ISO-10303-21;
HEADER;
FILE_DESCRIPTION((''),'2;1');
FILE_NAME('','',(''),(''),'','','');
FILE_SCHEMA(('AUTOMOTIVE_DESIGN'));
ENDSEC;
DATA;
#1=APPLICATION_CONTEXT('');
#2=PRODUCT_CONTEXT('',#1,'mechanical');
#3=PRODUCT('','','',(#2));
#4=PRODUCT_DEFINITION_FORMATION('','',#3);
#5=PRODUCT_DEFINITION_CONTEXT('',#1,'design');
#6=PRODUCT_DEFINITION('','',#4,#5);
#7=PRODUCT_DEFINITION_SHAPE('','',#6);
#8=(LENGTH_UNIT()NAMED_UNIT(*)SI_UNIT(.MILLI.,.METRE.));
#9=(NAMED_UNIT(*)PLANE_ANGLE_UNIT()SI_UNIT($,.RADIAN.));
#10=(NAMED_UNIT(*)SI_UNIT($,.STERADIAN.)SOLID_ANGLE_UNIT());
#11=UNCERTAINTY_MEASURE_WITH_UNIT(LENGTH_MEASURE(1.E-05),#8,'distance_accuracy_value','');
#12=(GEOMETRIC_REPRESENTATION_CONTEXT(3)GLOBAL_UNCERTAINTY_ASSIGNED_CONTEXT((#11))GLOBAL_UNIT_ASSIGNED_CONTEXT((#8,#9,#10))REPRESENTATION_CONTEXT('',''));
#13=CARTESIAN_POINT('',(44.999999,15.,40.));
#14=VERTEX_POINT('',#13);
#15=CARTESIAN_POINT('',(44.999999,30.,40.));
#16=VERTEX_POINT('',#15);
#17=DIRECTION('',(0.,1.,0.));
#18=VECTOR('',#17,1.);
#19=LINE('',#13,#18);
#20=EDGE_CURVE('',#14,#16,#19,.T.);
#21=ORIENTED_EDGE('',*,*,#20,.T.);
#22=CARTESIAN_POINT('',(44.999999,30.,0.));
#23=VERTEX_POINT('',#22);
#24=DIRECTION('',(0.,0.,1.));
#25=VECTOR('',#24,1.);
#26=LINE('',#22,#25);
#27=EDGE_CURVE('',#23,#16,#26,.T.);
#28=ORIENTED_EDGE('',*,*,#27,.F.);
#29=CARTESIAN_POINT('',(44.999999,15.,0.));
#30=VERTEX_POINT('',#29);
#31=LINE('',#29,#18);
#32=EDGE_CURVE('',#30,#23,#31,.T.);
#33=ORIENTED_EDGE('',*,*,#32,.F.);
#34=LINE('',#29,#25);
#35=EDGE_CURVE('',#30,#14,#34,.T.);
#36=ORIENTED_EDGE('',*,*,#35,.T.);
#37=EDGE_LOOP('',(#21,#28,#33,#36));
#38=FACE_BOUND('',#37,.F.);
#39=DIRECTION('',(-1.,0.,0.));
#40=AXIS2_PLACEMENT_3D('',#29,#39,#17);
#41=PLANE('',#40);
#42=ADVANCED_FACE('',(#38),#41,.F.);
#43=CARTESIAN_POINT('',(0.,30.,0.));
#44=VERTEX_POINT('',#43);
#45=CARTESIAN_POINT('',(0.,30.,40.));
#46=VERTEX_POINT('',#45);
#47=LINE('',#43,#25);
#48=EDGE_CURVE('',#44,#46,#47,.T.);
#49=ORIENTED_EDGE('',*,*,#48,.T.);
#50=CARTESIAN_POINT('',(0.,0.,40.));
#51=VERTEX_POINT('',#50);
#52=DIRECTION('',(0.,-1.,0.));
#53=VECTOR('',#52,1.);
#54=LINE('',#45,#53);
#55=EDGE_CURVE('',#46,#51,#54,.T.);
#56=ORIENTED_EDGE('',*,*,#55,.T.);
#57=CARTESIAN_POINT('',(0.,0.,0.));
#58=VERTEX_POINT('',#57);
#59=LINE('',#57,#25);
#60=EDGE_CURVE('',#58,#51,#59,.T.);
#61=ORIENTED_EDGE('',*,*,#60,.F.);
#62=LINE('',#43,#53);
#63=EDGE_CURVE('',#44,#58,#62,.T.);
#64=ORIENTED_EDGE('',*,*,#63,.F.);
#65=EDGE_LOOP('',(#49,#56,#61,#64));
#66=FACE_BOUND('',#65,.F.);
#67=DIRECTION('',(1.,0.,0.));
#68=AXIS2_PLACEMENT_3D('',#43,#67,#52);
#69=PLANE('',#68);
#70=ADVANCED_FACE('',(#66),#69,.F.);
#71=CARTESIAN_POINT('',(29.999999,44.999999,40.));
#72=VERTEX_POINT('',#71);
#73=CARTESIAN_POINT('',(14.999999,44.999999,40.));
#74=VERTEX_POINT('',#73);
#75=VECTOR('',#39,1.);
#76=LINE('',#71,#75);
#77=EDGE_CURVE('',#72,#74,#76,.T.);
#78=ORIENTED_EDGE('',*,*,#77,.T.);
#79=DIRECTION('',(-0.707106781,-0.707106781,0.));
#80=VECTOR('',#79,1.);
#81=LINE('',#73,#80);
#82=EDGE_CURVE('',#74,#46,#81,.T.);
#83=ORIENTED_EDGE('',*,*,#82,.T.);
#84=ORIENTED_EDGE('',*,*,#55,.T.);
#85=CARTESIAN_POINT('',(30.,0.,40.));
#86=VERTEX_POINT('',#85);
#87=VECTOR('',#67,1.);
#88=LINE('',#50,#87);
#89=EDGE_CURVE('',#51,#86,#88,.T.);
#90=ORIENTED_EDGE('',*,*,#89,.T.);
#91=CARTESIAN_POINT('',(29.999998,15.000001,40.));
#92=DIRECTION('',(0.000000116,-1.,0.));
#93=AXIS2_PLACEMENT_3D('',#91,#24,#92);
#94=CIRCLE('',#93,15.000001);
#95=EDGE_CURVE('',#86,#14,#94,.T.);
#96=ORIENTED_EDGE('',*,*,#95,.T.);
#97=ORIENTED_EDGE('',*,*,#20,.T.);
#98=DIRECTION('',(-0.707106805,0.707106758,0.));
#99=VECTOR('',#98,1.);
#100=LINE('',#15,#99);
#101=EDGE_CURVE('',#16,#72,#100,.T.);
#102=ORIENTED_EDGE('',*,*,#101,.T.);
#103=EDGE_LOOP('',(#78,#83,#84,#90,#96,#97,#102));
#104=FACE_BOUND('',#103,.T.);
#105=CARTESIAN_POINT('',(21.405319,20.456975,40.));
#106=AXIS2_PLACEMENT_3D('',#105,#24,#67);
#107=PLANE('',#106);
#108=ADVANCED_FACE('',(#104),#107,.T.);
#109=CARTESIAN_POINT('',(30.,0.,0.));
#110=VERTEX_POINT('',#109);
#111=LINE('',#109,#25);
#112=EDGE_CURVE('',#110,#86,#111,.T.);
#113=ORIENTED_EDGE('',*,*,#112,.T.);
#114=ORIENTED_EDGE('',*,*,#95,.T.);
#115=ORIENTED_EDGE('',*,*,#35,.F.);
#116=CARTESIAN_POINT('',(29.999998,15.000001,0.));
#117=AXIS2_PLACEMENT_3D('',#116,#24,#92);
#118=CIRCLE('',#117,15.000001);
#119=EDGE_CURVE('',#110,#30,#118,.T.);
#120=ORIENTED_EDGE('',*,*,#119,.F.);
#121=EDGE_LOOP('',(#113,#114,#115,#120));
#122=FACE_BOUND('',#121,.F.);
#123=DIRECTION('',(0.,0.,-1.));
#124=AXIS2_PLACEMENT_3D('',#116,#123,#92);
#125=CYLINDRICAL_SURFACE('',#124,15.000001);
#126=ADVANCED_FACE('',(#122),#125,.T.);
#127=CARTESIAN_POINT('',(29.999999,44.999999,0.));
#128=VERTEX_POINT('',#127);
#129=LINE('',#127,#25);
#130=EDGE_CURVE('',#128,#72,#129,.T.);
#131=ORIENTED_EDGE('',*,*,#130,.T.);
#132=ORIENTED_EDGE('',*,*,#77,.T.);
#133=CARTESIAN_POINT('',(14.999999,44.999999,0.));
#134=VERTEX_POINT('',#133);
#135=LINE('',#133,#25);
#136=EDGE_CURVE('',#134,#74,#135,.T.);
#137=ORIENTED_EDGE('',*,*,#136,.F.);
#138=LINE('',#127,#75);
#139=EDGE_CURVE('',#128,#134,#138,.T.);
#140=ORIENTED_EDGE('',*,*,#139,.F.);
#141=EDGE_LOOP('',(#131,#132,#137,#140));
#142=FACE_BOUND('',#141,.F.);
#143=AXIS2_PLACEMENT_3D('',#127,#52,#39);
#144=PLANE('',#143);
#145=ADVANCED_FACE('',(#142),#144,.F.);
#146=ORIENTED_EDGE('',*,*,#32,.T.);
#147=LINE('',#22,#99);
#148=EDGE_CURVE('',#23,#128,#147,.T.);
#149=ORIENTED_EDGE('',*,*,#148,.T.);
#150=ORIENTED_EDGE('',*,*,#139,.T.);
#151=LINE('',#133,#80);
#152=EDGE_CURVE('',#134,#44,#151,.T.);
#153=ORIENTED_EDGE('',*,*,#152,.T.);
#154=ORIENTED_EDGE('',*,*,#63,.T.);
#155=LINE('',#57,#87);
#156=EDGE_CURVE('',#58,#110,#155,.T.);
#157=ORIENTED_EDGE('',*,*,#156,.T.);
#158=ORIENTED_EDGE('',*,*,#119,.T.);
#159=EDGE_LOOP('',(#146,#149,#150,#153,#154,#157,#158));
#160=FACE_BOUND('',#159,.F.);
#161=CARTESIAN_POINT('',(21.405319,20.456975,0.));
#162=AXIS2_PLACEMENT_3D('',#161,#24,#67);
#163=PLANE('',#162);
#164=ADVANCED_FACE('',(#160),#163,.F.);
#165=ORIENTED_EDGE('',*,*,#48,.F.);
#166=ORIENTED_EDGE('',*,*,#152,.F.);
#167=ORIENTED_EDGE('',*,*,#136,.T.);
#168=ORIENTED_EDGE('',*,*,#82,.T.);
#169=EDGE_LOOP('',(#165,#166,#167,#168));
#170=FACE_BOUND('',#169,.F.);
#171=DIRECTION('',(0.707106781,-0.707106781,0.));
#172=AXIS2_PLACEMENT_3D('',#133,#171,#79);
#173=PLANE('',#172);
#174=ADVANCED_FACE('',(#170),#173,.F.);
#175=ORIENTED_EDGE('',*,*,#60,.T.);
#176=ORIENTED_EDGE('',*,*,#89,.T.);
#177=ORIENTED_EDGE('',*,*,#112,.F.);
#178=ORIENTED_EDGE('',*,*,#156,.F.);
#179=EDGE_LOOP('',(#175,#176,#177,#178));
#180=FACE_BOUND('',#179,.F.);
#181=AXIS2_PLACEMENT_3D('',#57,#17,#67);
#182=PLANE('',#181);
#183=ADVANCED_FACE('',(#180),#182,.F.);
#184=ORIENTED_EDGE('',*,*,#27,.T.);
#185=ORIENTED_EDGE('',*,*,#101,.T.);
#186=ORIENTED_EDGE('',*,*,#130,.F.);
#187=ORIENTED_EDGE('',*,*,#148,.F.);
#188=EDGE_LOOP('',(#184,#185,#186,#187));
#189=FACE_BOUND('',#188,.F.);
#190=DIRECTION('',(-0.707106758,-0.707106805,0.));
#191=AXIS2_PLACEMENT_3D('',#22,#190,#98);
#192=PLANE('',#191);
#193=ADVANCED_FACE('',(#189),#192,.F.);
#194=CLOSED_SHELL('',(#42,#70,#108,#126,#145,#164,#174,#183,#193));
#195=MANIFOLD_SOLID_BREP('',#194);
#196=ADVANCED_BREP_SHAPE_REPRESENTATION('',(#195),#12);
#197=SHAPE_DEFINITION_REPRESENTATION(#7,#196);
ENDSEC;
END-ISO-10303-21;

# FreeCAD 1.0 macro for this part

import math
import FreeCAD as App
import Part
import Sketcher
from FreeCAD import Vector

doc = App.newDocument("Part")
body = doc.addObject("PartDesign::Body", "Body")

# Sketch on XY plane
sketch1 = body.newObject("Sketcher::SketchObject", "Sketch")
sketch1.AttachmentSupport = (doc.getObject("XY_Plane"), [""])
sketch1.MapMode = "FlatFace"
sketch1.addGeometry([
    Part.LineSegment(Vector(0, 30, 0), Vector(0, 0, 0)),  # 0
    Part.LineSegment(Vector(0, 0, 0), Vector(30, 0, 0)),  # 1
    Part.ArcOfCircle(Part.Circle(Vector(30, 15, 0), Vector(0, 0, 1), 15), math.radians(-90), math.radians(0)),  # 2
    Part.LineSegment(Vector(45, 15, 0), Vector(45, 30, 0)),  # 3
    Part.LineSegment(Vector(45, 30, 0), Vector(30, 45, 0)),  # 4
    Part.LineSegment(Vector(30, 45, 0), Vector(15, 45, 0)),  # 5
    Part.LineSegment(Vector(15, 45, 0), Vector(0, 30, 0)),  # 6
], False)
sketch1.addConstraint([
    Sketcher.Constraint("Coincident", 0, 2, 1, 1),
    Sketcher.Constraint("Tangent", 1, 2, 2, 1),
    Sketcher.Constraint("Tangent", 2, 2, 3, 1),
    Sketcher.Constraint("Coincident", 3, 2, 4, 1),
    Sketcher.Constraint("Coincident", 4, 2, 5, 1),
    Sketcher.Constraint("Coincident", 5, 2, 6, 1),
    Sketcher.Constraint("Coincident", 6, 2, 0, 1),
    Sketcher.Constraint("Vertical", 0),
    Sketcher.Constraint("Horizontal", 1),
    Sketcher.Constraint("Vertical", 3),
    Sketcher.Constraint("Horizontal", 5),
    Sketcher.Constraint("Coincident", 0, 2, -1, 1),
    Sketcher.Constraint("Perpendicular", 4, 6),
    Sketcher.Constraint("Horizontal", 3, 2, 6, 2),
    Sketcher.Constraint("Vertical", 1, 2, 4, 2),
    Sketcher.Constraint("Equal", 1, 0),
    Sketcher.Constraint("Equal", 5, 3),
    Sketcher.Constraint("Radius", 2, 15.000001),
    Sketcher.Constraint("DistanceX", 1, 1, 1, 2, 30.0),
])
pad1 = body.newObject("PartDesign::Pad", "Pad")
pad1.Profile = sketch1
pad1.Length = 40

doc.recompute()
